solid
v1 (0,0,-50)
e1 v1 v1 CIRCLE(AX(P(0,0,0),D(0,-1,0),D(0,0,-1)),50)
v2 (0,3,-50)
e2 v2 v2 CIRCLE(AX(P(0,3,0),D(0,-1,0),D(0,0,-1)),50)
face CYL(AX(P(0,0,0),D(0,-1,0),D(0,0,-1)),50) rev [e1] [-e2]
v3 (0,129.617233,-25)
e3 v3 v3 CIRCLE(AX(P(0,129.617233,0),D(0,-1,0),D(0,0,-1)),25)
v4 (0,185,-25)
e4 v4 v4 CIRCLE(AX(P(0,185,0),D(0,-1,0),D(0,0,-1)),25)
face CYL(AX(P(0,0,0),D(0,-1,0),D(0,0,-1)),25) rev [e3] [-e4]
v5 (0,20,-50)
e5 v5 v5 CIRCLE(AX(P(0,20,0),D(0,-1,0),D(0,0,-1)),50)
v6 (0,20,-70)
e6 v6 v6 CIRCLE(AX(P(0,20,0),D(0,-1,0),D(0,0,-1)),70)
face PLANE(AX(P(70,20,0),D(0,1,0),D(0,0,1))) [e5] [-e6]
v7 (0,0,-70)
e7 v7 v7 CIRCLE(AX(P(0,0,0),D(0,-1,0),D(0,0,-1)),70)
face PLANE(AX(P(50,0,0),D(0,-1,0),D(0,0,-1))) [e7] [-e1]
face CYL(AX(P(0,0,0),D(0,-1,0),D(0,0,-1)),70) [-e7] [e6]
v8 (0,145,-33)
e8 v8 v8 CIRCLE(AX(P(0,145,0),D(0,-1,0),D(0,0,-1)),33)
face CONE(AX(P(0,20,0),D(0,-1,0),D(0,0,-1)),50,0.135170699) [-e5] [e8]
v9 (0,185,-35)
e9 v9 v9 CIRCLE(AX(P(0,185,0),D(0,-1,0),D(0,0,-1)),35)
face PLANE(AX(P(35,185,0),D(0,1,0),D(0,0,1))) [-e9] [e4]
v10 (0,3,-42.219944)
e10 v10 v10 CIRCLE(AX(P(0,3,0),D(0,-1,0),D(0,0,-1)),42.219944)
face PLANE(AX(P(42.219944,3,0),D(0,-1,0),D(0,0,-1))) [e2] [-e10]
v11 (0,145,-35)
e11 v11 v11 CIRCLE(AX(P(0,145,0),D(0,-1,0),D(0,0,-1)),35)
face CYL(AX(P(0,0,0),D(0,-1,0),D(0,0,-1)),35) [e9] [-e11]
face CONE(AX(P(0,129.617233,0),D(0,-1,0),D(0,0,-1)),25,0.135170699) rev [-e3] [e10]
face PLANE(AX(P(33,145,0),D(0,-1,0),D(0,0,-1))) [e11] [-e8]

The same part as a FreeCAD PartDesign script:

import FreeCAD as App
import Part
import Sketcher
from FreeCAD import Vector

doc = App.newDocument("Part")
body = doc.addObject("PartDesign::Body", "Body")

sketch1 = doc.addObject("Sketcher::SketchObject", "Sketch")
body.addObject(sketch1)
sketch1.AttachmentSupport = (doc.XY_Plane, [""])
sketch1.MapMode = "FlatFace"
sketch1.addGeometry([
    Part.LineSegment(Vector(70, 0, 0), Vector(70, 20, 0)),
    Part.LineSegment(Vector(70, 20, 0), Vector(50, 20, 0)),
    Part.LineSegment(Vector(50, 20, 0), Vector(33, 145, 0)),
    Part.LineSegment(Vector(33, 145, 0), Vector(35, 145, 0)),
    Part.LineSegment(Vector(35, 145, 0), Vector(35, 185, 0)),
    Part.LineSegment(Vector(35, 185, 0), Vector(25, 185, 0)),
    Part.LineSegment(Vector(25, 185, 0), Vector(25, 129.6, 0)),
    Part.LineSegment(Vector(25, 129.6, 0), Vector(42.2, 3, 0)),
    Part.LineSegment(Vector(42.2, 3, 0), Vector(50, 3, 0)),
    Part.LineSegment(Vector(50, 3, 0), Vector(50, 0, 0)),
    Part.LineSegment(Vector(50, 0, 0), Vector(70, 0, 0)),
], False)
sketch1.addConstraint([
    Sketcher.Constraint("Coincident", 0, 2, 1, 1),
    Sketcher.Constraint("Coincident", 1, 2, 2, 1),
    Sketcher.Constraint("Coincident", 2, 2, 3, 1),
    Sketcher.Constraint("Coincident", 3, 2, 4, 1),
    Sketcher.Constraint("Coincident", 4, 2, 5, 1),
    Sketcher.Constraint("Coincident", 5, 2, 6, 1),
    Sketcher.Constraint("Coincident", 6, 2, 7, 1),
    Sketcher.Constraint("Coincident", 7, 2, 8, 1),
    Sketcher.Constraint("Coincident", 8, 2, 9, 1),
    Sketcher.Constraint("Coincident", 9, 2, 10, 1),
    Sketcher.Constraint("Coincident", 10, 2, 0, 1),
    Sketcher.Constraint("Vertical", 0),
    Sketcher.Constraint("Horizontal", 1),
    Sketcher.Constraint("Horizontal", 3),
    Sketcher.Constraint("Vertical", 4),
    Sketcher.Constraint("Horizontal", 5),
    Sketcher.Constraint("Vertical", 6),
    Sketcher.Constraint("Horizontal", 8),
    Sketcher.Constraint("Vertical", 9),
    Sketcher.Constraint("Horizontal", 10),
    Sketcher.Constraint("PointOnObject", 9, 2, -1),
    Sketcher.Constraint("Parallel", 2, 7),
    Sketcher.Constraint("Vertical", 1, 2, 8, 2),
    Sketcher.Constraint("Equal", 10, 0),
    Sketcher.Constraint("DistanceX", 1, 2, 1, 1, 20.0),
    Sketcher.Constraint("DistanceX", 3, 1, 3, 2, 2.0),
    Sketcher.Constraint("DistanceX", 5, 2, 5, 1, 10.0),
    Sketcher.Constraint("DistanceY", 4, 1, 4, 2, 40.0),
    Sketcher.Constraint("DistanceY", 9, 2, 9, 1, 3.0),
    Sketcher.Constraint("DistanceX", -1, 1, 0, 2, 70.0),
    Sketcher.Constraint("DistanceX", -1, 1, 2, 2, 33.0),
    Sketcher.Constraint("DistanceY", -1, 1, 2, 2, 145.0),
    Sketcher.Constraint("DistanceX", 8, 1, 8, 2, 7.780056),
])
revolution = doc.addObject("PartDesign::Revolution", "Revolution")
body.addObject(revolution)
revolution.Profile = sketch1
revolution.ReferenceAxis = (sketch1, ["V_Axis"])
revolution.Angle = 360

doc.recompute()
